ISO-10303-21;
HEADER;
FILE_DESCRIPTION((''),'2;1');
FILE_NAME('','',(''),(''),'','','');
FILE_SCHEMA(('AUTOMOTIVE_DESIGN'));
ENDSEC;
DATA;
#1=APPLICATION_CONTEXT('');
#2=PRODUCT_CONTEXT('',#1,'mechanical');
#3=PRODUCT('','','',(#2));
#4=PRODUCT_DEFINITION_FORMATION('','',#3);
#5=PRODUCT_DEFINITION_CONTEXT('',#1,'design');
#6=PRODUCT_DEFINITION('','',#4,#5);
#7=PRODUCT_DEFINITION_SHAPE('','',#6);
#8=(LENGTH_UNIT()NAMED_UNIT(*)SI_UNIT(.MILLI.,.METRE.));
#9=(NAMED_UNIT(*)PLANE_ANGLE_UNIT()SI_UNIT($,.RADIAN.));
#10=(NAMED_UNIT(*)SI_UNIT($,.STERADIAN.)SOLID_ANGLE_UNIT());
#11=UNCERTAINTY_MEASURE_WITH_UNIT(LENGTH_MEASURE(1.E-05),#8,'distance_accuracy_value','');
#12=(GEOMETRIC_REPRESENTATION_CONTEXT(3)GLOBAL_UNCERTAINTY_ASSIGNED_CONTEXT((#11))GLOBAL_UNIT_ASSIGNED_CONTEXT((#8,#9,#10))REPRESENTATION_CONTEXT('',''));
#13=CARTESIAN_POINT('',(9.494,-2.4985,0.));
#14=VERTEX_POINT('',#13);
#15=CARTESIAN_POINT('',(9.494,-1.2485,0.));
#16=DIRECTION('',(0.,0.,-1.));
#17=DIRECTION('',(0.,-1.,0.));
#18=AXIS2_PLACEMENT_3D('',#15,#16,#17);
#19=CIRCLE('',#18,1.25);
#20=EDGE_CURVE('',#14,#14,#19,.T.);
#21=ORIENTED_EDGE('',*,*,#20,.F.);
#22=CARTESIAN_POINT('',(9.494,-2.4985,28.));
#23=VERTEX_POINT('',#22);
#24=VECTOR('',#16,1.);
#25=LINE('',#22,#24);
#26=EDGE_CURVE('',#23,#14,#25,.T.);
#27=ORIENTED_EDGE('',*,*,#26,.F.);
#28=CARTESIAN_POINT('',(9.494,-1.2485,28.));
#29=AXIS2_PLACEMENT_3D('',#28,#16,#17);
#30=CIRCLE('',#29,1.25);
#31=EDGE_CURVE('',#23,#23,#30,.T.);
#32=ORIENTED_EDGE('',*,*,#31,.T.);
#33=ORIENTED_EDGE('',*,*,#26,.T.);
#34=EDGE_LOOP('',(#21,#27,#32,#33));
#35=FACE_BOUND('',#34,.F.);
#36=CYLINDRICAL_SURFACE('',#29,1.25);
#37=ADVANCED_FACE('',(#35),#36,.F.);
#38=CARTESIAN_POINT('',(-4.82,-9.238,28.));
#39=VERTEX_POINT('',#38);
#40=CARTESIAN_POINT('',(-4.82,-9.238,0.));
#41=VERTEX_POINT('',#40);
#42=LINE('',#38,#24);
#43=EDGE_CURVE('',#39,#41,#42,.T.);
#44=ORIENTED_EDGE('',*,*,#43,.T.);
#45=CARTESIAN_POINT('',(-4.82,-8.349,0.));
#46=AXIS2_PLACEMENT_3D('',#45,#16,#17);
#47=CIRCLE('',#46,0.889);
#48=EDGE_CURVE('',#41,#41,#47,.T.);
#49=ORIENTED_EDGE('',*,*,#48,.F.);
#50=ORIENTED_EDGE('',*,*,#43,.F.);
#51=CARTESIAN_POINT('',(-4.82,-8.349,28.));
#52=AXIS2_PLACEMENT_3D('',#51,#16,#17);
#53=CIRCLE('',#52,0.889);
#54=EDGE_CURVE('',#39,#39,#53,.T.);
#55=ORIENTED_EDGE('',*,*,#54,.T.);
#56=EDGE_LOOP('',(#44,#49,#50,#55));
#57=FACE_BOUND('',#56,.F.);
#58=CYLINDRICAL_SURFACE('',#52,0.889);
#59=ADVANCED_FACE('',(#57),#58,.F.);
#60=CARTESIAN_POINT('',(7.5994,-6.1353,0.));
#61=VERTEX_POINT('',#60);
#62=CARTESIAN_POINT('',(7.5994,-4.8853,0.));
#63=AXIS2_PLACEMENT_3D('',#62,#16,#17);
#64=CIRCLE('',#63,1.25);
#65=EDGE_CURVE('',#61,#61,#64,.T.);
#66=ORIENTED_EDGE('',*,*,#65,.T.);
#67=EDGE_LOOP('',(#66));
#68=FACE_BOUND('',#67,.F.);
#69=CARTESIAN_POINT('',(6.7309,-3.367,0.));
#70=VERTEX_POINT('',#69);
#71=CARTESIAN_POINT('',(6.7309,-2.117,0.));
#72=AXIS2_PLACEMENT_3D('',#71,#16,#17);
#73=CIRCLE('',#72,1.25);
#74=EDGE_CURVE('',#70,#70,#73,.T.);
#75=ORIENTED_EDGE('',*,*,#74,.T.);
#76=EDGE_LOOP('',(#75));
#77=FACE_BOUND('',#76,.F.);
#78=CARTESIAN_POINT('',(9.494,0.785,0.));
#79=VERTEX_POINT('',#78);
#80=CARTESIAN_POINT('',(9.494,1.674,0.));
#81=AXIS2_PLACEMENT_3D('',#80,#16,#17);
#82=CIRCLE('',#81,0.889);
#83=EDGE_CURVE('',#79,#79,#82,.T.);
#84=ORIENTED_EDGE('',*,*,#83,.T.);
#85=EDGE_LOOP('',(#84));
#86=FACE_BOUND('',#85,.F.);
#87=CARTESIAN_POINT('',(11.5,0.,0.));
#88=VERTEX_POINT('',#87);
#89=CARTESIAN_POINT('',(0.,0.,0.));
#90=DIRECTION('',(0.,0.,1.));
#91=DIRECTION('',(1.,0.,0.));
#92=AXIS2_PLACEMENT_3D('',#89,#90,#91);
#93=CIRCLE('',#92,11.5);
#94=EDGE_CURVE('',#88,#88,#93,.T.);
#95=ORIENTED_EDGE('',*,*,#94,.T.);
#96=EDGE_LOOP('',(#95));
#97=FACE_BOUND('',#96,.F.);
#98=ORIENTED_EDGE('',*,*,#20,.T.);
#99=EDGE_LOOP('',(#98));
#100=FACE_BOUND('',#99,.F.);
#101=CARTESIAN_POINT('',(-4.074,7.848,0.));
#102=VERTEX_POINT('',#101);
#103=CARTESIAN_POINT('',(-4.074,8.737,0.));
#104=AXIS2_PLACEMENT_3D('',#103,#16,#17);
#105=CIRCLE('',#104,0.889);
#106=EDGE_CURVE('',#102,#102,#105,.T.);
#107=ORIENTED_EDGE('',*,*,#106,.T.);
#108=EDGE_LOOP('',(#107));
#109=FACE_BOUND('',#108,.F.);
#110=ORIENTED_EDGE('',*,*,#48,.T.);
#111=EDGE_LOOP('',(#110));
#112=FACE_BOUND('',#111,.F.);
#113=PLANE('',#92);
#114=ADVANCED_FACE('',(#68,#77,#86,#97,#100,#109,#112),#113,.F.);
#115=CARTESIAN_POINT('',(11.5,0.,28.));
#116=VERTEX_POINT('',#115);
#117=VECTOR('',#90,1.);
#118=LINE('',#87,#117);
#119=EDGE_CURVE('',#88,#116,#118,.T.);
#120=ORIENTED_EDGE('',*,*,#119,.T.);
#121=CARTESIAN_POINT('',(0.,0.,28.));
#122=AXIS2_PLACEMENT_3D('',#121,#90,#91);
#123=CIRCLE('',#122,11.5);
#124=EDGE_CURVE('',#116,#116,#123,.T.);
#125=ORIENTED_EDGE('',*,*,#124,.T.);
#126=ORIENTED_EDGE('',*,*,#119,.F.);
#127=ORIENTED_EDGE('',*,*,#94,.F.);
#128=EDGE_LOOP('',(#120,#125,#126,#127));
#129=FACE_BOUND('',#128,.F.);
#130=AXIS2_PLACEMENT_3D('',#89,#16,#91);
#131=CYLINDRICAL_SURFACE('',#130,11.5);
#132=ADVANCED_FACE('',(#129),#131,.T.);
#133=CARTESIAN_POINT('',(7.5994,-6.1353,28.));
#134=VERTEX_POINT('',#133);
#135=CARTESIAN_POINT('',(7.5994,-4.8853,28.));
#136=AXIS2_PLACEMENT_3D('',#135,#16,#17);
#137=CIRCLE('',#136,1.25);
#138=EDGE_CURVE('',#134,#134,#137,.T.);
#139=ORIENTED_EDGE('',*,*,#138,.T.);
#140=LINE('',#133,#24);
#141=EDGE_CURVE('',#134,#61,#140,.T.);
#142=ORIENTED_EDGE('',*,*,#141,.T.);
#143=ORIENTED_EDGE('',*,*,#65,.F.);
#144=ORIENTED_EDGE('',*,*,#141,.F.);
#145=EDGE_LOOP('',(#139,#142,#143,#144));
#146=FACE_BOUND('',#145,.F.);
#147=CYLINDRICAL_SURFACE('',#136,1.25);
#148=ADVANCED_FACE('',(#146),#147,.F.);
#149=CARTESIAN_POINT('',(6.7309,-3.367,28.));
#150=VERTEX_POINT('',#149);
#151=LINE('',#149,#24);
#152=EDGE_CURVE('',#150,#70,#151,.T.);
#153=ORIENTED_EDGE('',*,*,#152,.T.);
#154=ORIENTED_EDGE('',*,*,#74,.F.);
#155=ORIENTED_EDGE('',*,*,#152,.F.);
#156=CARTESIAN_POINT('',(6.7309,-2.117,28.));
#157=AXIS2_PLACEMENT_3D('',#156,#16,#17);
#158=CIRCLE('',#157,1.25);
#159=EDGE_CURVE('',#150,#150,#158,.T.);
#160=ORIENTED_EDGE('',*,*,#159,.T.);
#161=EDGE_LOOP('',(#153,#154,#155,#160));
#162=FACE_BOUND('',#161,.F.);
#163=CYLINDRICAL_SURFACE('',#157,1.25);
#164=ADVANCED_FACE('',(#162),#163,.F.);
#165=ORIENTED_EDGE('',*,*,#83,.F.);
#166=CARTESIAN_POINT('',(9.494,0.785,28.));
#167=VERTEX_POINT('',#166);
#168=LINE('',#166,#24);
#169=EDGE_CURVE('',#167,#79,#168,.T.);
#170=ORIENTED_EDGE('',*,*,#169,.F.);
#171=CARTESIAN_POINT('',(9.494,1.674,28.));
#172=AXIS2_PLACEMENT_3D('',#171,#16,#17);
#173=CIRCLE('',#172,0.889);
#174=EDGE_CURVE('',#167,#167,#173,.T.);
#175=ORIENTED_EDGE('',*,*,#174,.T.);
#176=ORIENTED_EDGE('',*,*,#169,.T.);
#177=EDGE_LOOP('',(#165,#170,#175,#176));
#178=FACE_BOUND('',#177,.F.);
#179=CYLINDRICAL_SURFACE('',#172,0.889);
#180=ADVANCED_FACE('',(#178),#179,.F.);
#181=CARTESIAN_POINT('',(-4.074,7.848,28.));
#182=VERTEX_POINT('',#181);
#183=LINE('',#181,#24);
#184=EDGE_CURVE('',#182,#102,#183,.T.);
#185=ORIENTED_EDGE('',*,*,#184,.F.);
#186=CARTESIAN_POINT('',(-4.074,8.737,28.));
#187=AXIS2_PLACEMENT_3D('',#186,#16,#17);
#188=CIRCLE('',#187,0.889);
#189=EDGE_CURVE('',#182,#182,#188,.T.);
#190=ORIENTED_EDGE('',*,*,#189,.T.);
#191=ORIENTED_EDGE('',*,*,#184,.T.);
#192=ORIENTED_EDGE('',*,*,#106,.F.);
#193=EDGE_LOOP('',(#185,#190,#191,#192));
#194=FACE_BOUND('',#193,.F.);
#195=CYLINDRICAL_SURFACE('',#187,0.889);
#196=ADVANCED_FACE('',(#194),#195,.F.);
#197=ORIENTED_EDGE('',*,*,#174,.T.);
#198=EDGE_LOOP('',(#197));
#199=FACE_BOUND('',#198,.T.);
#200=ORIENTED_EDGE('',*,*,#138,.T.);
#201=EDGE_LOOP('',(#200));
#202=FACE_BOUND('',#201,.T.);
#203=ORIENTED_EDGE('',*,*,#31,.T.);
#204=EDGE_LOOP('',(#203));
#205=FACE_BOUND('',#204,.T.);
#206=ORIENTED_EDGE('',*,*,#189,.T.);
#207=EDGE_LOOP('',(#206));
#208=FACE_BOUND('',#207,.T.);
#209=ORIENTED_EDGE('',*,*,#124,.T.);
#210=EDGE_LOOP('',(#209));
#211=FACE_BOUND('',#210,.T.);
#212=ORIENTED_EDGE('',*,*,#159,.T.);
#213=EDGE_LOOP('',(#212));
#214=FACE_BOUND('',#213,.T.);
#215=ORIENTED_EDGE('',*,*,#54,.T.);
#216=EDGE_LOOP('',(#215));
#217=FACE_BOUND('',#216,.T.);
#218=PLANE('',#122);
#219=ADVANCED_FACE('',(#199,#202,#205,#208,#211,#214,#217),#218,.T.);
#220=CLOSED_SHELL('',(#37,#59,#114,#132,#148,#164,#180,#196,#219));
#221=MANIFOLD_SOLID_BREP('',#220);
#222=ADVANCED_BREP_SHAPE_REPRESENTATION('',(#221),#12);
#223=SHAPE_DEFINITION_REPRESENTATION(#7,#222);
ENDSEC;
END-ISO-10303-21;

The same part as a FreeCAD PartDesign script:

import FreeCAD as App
import Part
import Sketcher
Q = App.Units.Quantity

doc = App.newDocument("Part")
params = doc.addObject("Spreadsheet::Sheet", "Params")
for row, (alias, value) in enumerate([
    ("sketch1_diameter", "23 mm"),
    ("pad1_length", "28 mm"),
    ("hole_diameter", "1.778 mm"),
    ("sketch3_diameter", "2.5 mm"),
    ("hole2_diameter", "2.5 mm"),
], start=1):
    params.set(f"A{row}", alias)
    params.set(f"B{row}", "=" + value)
    params.setAlias(f"B{row}", alias)

body = doc.addObject("PartDesign::Body", "Body")

# Sketch on XY plane
sketch1 = body.newObject("Sketcher::SketchObject", "Sketch")
sketch1.AttachmentSupport = (doc.getObject("XY_Plane"), [""])
sketch1.MapMode = "FlatFace"
sketch1.addGeometry(Part.Circle(App.Vector(0, 0, 0), App.Vector(0, 0, 1), 11.5), False)
sketch1.addConstraint([
    Sketcher.Constraint("Coincident", 0, 3, -1, 1),
    Sketcher.Constraint("Diameter", 0, Q("23 mm")),
])
sketch1.setExpression("Constraints[1]", "Params.sketch1_diameter")
pad1 = body.newObject("PartDesign::Pad", "Pad")
pad1.Profile = sketch1
pad1.setExpression("Length", "Params.pad1_length")

# Sketch on XY plane
sketch2 = body.newObject("Sketcher::SketchObject", "Sketch001")
sketch2.AttachmentSupport = (doc.getObject("XY_Plane"), [""])
sketch2.MapMode = "FlatFace"
sketch2.AttachmentOffset = App.Placement(App.Vector(0, 0, 28), App.Rotation())
sketch2.addGeometry([
    Part.Circle(App.Vector(-4.074, 8.737, 0), App.Vector(0, 0, 1), 0.889),
    Part.Circle(App.Vector(-4.82, -8.349, 0), App.Vector(0, 0, 1), 0.889),
    Part.Circle(App.Vector(9.494, 1.674, 0), App.Vector(0, 0, 1), 0.889),
], False)
sketch2.addConstraint([
    Sketcher.Constraint("Equal", 0, 1),
    Sketcher.Constraint("Equal", 1, 2),
    Sketcher.Constraint("Diameter", 0, Q("1.778 mm")),
    Sketcher.Constraint("DistanceX", 1, 3, -1, 1, Q("4.82 mm")),
    Sketcher.Constraint("DistanceX", 0, 3, -1, 1, Q("4.074 mm")),
    Sketcher.Constraint("DistanceY", -1, 1, 0, 3, Q("8.737 mm")),
    Sketcher.Constraint("DistanceY", 1, 3, -1, 1, Q("8.349 mm")),
    Sketcher.Constraint("DistanceX", -1, 1, 2, 3, Q("9.494 mm")),
    Sketcher.Constraint("DistanceY", -1, 1, 2, 3, Q("1.674 mm")),
])
doc.recompute()
hole = body.newObject("PartDesign::Hole", "Hole")
hole.Profile = sketch2
hole.ThreadType = "None"
hole.setExpression("Diameter", "Params.hole_diameter")
hole.DepthType = "ThroughAll"

# Sketch on XY plane
sketch3 = body.newObject("Sketcher::SketchObject", "Sketch002")
sketch3.AttachmentSupport = (doc.getObject("XY_Plane"), [""])
sketch3.MapMode = "FlatFace"
sketch3.AttachmentOffset = App.Placement(App.Vector(0, 0, 28), App.Rotation())
sketch3.addGeometry([
    Part.Circle(App.Vector(9.494, -1.2485, 0), App.Vector(0, 0, 1), 1.25),
    Part.Circle(App.Vector(6.7309, -2.117, 0), App.Vector(0, 0, 1), 1.25),
    Part.Circle(App.Vector(7.5994, -4.8853, 0), App.Vector(0, 0, 1), 1.25),
], False)
sketch3.addConstraint([
    Sketcher.Constraint("Equal", 0, 1),
    Sketcher.Constraint("Equal", 1, 2),
    Sketcher.Constraint("Diameter", 0, Q("2.5 mm")),
    Sketcher.Constraint("DistanceX", -1, 1, 0, 3, Q("9.494 mm")),
    Sketcher.Constraint("DistanceX", -1, 1, 1, 3, Q("6.731 mm")),
    Sketcher.Constraint("DistanceY", 1, 3, -1, 1, Q("2.117 mm")),
    Sketcher.Constraint("DistanceY", 0, 3, -1, 1, Q("1.2485 mm")),
    Sketcher.Constraint("DistanceX", -1, 1, 2, 3, Q("7.5994 mm")),
    Sketcher.Constraint("DistanceY", 2, 3, -1, 1, Q("4.8853 mm")),
])
sketch3.setExpression("Constraints[2]", "Params.sketch3_diameter")
doc.recompute()
hole2 = body.newObject("PartDesign::Hole", "Hole001")
hole2.Profile = sketch3
hole2.ThreadType = "None"
hole2.setExpression("Diameter", "Params.hole2_diameter")
hole2.DepthType = "ThroughAll"

doc.recompute()
